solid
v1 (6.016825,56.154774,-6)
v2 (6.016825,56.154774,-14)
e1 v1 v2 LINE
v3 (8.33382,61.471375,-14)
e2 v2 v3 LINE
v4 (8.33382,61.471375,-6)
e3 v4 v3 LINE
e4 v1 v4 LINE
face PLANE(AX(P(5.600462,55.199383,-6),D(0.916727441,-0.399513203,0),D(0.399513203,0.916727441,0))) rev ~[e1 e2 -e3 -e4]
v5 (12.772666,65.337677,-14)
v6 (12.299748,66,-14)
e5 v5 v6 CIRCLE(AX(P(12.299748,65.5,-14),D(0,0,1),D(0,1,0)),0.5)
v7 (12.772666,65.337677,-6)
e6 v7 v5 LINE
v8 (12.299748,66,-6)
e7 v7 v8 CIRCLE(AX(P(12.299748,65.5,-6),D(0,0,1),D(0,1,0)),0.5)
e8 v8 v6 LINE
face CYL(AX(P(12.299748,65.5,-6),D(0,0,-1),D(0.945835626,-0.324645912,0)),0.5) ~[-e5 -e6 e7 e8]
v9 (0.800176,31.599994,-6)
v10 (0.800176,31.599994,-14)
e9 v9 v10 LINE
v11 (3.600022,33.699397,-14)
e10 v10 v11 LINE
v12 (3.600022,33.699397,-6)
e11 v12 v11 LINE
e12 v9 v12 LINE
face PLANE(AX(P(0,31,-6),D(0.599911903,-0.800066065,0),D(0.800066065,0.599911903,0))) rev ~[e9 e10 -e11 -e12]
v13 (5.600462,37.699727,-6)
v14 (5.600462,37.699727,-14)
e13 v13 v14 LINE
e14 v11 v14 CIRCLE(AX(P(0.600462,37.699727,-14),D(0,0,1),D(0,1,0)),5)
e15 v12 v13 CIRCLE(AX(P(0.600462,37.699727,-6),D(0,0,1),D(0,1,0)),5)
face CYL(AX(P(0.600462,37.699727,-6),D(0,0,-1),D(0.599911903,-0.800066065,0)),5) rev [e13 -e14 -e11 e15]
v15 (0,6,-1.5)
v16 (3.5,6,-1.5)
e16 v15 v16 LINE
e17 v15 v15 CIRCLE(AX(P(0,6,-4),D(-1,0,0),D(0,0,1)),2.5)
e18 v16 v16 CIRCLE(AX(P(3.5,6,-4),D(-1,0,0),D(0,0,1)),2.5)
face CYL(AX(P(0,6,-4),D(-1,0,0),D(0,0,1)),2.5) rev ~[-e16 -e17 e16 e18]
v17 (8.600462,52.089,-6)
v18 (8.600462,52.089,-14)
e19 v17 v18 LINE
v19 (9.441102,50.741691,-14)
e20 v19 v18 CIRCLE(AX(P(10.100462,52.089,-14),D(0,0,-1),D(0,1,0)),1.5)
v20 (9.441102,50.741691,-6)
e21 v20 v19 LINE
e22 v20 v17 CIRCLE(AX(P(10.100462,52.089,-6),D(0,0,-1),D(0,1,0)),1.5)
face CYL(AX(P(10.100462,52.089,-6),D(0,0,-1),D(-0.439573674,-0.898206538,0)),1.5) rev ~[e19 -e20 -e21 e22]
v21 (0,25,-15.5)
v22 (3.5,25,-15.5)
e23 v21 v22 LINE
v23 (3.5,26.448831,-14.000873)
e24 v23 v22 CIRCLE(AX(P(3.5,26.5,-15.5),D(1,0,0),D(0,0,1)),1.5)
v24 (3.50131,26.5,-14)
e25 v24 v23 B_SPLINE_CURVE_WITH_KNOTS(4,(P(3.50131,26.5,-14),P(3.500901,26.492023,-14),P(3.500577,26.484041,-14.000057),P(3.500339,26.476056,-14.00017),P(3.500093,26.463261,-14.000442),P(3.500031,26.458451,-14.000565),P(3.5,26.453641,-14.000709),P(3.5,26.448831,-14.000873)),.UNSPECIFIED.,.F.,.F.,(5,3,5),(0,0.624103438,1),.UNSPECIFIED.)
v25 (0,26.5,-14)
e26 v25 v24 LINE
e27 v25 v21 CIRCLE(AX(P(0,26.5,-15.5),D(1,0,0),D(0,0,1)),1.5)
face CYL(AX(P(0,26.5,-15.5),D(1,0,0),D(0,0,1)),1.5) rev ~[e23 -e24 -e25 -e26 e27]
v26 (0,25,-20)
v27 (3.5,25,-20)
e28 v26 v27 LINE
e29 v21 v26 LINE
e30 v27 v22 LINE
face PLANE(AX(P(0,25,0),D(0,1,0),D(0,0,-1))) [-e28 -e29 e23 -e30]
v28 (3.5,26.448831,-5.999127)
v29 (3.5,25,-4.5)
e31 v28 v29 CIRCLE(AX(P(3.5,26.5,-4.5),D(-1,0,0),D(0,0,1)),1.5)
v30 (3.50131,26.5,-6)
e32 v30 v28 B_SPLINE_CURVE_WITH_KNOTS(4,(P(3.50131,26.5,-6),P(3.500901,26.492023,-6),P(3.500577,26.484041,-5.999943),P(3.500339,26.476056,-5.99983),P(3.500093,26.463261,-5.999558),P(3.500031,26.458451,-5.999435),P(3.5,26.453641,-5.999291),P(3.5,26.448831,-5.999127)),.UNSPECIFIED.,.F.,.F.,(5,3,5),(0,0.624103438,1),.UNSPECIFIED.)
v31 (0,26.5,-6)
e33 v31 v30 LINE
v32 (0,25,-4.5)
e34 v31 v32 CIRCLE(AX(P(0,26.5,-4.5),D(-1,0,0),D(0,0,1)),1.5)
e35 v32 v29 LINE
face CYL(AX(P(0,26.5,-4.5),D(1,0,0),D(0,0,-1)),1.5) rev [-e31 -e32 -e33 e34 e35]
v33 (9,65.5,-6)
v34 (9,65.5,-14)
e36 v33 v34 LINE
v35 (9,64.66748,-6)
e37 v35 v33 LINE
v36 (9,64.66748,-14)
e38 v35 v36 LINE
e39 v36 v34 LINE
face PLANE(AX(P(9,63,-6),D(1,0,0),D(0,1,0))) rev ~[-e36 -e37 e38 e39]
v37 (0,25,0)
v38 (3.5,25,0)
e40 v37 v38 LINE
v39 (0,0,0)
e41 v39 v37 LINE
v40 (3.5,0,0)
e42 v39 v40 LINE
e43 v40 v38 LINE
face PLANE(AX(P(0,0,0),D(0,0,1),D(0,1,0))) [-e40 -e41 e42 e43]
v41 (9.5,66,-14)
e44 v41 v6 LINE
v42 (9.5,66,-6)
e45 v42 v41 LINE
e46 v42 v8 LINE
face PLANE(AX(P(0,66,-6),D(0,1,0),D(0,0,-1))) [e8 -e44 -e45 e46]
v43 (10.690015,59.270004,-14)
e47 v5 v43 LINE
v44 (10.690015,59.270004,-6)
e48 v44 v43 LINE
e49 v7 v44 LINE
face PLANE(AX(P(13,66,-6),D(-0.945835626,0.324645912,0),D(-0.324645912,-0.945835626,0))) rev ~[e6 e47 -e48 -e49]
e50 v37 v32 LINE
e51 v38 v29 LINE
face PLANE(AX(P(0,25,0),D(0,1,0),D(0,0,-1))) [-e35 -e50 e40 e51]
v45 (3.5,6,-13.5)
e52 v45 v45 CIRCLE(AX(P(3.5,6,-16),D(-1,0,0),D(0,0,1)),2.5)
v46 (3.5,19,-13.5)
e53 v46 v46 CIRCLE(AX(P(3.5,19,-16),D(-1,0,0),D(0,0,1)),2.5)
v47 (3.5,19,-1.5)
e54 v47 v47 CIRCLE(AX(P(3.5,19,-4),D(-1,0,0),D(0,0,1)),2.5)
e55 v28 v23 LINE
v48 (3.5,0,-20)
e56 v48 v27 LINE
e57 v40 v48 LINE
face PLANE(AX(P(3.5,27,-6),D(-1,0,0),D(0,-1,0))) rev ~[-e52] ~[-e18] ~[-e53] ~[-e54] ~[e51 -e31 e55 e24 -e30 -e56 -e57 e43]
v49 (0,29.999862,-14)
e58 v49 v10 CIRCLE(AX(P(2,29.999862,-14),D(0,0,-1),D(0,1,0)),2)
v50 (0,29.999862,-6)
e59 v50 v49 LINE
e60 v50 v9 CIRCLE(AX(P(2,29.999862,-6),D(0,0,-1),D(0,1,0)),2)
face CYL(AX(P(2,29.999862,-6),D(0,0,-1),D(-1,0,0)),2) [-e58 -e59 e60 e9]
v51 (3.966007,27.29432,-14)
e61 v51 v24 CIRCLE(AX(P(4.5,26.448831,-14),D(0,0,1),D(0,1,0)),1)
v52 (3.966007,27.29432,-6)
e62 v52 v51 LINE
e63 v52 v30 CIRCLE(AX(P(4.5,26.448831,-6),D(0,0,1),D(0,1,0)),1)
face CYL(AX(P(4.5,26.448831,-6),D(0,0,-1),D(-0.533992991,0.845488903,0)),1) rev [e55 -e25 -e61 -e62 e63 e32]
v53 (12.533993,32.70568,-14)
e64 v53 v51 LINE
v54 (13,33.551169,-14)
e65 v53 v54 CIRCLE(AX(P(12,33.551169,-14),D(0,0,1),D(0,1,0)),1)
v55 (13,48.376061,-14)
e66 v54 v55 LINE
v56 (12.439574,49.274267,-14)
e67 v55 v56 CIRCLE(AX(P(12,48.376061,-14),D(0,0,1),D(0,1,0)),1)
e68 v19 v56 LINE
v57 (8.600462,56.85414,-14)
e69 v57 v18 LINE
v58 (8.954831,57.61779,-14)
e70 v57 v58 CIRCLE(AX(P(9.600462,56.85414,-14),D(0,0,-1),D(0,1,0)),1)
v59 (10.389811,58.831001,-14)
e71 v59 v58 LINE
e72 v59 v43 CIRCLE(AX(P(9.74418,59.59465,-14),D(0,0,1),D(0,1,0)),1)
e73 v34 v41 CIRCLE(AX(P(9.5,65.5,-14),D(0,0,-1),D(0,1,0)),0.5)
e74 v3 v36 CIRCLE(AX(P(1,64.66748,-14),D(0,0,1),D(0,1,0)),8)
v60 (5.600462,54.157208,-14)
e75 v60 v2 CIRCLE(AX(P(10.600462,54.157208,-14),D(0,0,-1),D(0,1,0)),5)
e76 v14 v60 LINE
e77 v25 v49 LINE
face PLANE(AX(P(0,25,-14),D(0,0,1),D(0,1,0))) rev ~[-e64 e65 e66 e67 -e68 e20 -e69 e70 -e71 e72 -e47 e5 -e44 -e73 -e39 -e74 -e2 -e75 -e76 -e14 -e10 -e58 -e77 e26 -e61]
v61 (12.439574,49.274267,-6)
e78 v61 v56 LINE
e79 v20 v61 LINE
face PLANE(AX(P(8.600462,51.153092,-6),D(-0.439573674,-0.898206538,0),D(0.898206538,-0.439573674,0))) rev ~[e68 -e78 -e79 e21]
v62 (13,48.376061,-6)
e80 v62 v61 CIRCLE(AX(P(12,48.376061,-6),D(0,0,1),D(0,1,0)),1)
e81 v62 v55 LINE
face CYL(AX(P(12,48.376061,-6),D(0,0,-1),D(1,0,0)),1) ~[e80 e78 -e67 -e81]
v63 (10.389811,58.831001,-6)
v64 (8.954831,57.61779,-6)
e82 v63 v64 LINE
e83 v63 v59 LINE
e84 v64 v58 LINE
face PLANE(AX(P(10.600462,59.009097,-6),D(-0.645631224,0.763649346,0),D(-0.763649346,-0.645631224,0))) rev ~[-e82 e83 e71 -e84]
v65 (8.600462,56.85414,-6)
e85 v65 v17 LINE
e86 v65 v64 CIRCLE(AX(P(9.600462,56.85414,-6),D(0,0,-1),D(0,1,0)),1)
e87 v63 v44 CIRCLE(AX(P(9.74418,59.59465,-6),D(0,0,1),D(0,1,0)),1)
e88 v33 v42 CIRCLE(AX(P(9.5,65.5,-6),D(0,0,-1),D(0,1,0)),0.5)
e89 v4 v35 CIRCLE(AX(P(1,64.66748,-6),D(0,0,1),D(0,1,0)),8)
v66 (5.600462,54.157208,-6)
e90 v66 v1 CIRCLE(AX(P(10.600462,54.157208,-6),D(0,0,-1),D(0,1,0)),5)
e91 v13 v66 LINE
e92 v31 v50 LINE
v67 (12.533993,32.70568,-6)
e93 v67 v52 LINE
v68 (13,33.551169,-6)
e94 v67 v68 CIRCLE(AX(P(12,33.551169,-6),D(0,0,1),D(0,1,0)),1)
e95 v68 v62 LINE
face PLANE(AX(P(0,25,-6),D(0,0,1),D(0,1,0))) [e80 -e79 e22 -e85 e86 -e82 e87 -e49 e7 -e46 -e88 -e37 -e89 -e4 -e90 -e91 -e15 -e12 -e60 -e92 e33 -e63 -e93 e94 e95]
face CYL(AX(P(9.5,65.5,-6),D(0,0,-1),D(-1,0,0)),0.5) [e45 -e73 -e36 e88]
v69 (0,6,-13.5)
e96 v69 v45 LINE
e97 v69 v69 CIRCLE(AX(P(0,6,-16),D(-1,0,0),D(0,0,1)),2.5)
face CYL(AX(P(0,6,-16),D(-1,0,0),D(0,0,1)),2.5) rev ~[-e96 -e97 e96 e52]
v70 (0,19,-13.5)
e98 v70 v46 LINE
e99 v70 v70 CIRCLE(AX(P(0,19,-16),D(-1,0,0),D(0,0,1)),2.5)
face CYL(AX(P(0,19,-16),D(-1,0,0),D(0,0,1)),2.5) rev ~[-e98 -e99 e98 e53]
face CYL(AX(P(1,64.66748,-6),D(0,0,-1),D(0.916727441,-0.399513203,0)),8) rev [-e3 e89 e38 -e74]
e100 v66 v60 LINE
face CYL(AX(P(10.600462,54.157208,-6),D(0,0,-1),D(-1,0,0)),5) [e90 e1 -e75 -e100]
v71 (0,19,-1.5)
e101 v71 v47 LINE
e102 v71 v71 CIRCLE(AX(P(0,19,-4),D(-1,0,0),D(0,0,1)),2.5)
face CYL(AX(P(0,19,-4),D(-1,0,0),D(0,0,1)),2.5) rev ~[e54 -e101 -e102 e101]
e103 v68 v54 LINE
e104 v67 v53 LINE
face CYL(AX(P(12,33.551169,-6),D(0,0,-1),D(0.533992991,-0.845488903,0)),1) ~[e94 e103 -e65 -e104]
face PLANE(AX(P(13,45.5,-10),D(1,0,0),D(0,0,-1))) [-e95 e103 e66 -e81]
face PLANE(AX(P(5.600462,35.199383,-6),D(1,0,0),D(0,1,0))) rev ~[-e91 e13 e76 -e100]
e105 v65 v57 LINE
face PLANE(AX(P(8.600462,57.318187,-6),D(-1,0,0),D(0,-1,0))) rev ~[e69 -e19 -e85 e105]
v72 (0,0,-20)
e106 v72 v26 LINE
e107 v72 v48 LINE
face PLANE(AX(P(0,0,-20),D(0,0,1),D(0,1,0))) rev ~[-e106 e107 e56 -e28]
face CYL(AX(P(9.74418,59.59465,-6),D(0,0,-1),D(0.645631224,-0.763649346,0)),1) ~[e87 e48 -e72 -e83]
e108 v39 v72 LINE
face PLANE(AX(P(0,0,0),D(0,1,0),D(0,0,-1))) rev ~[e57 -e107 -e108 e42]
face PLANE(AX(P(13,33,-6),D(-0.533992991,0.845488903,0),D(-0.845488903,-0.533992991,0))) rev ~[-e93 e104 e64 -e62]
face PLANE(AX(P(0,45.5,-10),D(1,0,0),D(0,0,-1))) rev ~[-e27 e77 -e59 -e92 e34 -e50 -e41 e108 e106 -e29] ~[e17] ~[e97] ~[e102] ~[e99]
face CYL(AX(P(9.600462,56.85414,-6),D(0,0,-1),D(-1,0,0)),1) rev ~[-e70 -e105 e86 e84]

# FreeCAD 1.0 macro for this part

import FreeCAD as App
import Part
import Sketcher

V = App.Vector
Q = App.Units.Quantity


def edges_at(feature, points):
    """Names of the edges that pass closest to the given points."""
    edges = feature.Shape.Edges
    near = lambda p: min(range(len(edges)), key=lambda i: edges[i].distToShape(Part.Vertex(*p))[0])
    return sorted({f"Edge{near(p) + 1}" for p in points})

doc = App.newDocument("Part")
body = doc.addObject("PartDesign::Body", "Body")

# Sketch on YZ plane
sketch1 = body.newObject("Sketcher::SketchObject", "Sketch")
sketch1.AttachmentSupport = (doc.getObject("YZ_Plane"), [""])
sketch1.MapMode = "FlatFace"
sketch1.addGeometry(Part.LineSegment(V(25, 0, 0), V(0, 0, 0)), False)
sketch1.addGeometry(Part.LineSegment(V(0, 0, 0), V(0, -20, 0)), False)
sketch1.addGeometry(Part.LineSegment(V(0, -20, 0), V(25, -20, 0)), False)
sketch1.addGeometry(Part.LineSegment(V(25, -20, 0), V(25, 0, 0)), False)
sketch1.addConstraint(Sketcher.Constraint("Coincident", 0, 2, 1, 1))
sketch1.addConstraint(Sketcher.Constraint("Coincident", 1, 2, 2, 1))
sketch1.addConstraint(Sketcher.Constraint("Coincident", 2, 2, 3, 1))
sketch1.addConstraint(Sketcher.Constraint("Coincident", 3, 2, 0, 1))
sketch1.addConstraint(Sketcher.Constraint("Horizontal", 0))
sketch1.addConstraint(Sketcher.Constraint("Vertical", 1))
sketch1.addConstraint(Sketcher.Constraint("Horizontal", 2))
sketch1.addConstraint(Sketcher.Constraint("Vertical", 3))
sketch1.addConstraint(Sketcher.Constraint("Coincident", 0, 2, -1, 1))
sketch1.addConstraint(Sketcher.Constraint("DistanceX", 0, 2, 0, 1, Q("25 mm")))
sketch1.addConstraint(Sketcher.Constraint("DistanceY", 1, 2, 1, 1, Q("20 mm")))
pad1 = body.newObject("PartDesign::Pad", "Pad")
pad1.Profile = sketch1
pad1.Length = 3.5

# Sketch on YZ plane
sketch2 = body.newObject("Sketcher::SketchObject", "Sketch001")
sketch2.AttachmentSupport = (doc.getObject("YZ_Plane"), [""])
sketch2.MapMode = "FlatFace"
sketch2.AttachmentOffset = App.Placement(V(0, 0, 3.5), App.Rotation())
sketch2.addGeometry(Part.LineSegment(V(66, -6, 0), V(25, -6, 0)), False)
sketch2.addGeometry(Part.LineSegment(V(25, -6, 0), V(25, -14, 0)), False)
sketch2.addGeometry(Part.LineSegment(V(25, -14, 0), V(66, -14, 0)), False)
sketch2.addGeometry(Part.LineSegment(V(66, -14, 0), V(66, -6, 0)), False)
sketch2.addConstraint(Sketcher.Constraint("Coincident", 0, 2, 1, 1))
sketch2.addConstraint(Sketcher.Constraint("Coincident", 1, 2, 2, 1))
sketch2.addConstraint(Sketcher.Constraint("Coincident", 2, 2, 3, 1))
sketch2.addConstraint(Sketcher.Constraint("Coincident", 3, 2, 0, 1))
sketch2.addConstraint(Sketcher.Constraint("Horizontal", 0))
sketch2.addConstraint(Sketcher.Constraint("Vertical", 1))
sketch2.addConstraint(Sketcher.Constraint("Horizontal", 2))
sketch2.addConstraint(Sketcher.Constraint("Vertical", 3))
sketch2.addConstraint(Sketcher.Constraint("DistanceX", 0, 2, 0, 1, Q("41 mm")))
sketch2.addConstraint(Sketcher.Constraint("DistanceY", 1, 2, 1, 1, Q("8 mm")))
sketch2.addConstraint(Sketcher.Constraint("DistanceX", -1, 1, 0, 2, Q("25 mm")))
sketch2.addConstraint(Sketcher.Constraint("DistanceY", 0, 2, -1, 1, Q("6 mm")))
pad2 = body.newObject("PartDesign::Pad", "Pad001")
pad2.Profile = sketch2
pad2.Type = "TwoLengths"
pad2.Length = 9.5
pad2.Length2 = 3.5

# Sketch on YZ plane
sketch3 = body.newObject("Sketcher::SketchObject", "Sketch002")
sketch3.AttachmentSupport = (doc.getObject("YZ_Plane"), [""])
sketch3.MapMode = "FlatFace"
sketch3.addGeometry(Part.Circle(V(19, -16, 0), V(0, 0, 1), 2.5), False)
sketch3.addGeometry(Part.Circle(V(6, -16, 0), V(0, 0, 1), 2.5), False)
sketch3.addGeometry(Part.Circle(V(6, -4, 0), V(0, 0, 1), 2.5), False)
sketch3.addGeometry(Part.Circle(V(19, -4, 0), V(0, 0, 1), 2.5), False)
sketch3.addConstraint(Sketcher.Constraint("Equal", 0, 1))
sketch3.addConstraint(Sketcher.Constraint("Equal", 1, 2))
sketch3.addConstraint(Sketcher.Constraint("Equal", 2, 3))
sketch3.addConstraint(Sketcher.Constraint("Horizontal", 0, 3, 1, 3))
sketch3.addConstraint(Sketcher.Constraint("Horizontal", 2, 3, 3, 3))
sketch3.addConstraint(Sketcher.Constraint("Vertical", 1, 3, 2, 3))
sketch3.addConstraint(Sketcher.Constraint("Vertical", 0, 3, 3, 3))
sketch3.addConstraint(Sketcher.Constraint("Diameter", 0, Q("5 mm")))
sketch3.addConstraint(Sketcher.Constraint("DistanceX", -1, 1, 0, 3, Q("19 mm")))
sketch3.addConstraint(Sketcher.Constraint("DistanceY", 0, 3, -1, 1, Q("16 mm")))
sketch3.addConstraint(Sketcher.Constraint("DistanceX", -1, 1, 1, 3, Q("6 mm")))
sketch3.addConstraint(Sketcher.Constraint("DistanceY", 2, 3, -1, 1, Q("4 mm")))
pocket1 = body.newObject("PartDesign::Pocket", "Pocket")
pocket1.Profile = sketch3
pocket1.Length = 9.5
pocket1.Reversed = True

# Sketch on XY plane
sketch4 = body.newObject("Sketcher::SketchObject", "Sketch003")
sketch4.AttachmentSupport = (doc.getObject("XY_Plane"), [""])
sketch4.MapMode = "FlatFace"
sketch4.AttachmentOffset = App.Placement(V(0, 0, -6), App.Rotation())
sketch4.addGeometry(Part.LineSegment(V(0, 66, 0), V(0, 31, 0)), False)
sketch4.addGeometry(Part.LineSegment(V(0, 31, 0), V(5.600462, 35.199383, 0)), False)
sketch4.addGeometry(Part.LineSegment(V(5.600462, 35.199383, 0), V(5.600462, 55.199383, 0)), False)
sketch4.addGeometry(Part.LineSegment(V(5.600462, 55.199383, 0), V(9, 63, 0)), False)
sketch4.addGeometry(Part.LineSegment(V(9, 63, 0), V(9, 66, 0)), False)
sketch4.addGeometry(Part.LineSegment(V(9, 66, 0), V(0, 66, 0)), False)
sketch4.addGeometry(Part.LineSegment(V(3.5, 27, 0), V(3.5, 25, 0)), False)
sketch4.addGeometry(Part.LineSegment(V(3.5, 25, 0), V(13, 25, 0)), False)
sketch4.addGeometry(Part.LineSegment(V(13, 25, 0), V(13, 33, 0)), False)
sketch4.addGeometry(Part.LineSegment(V(13, 33, 0), V(3.5, 27, 0)), False)
sketch4.addGeometry(Part.LineSegment(V(13, 49, 0), V(13, 66, 0)), False)
sketch4.addGeometry(Part.LineSegment(V(13, 66, 0), V(10.600462, 59.009097, 0)), False)
sketch4.addGeometry(Part.LineSegment(V(10.600462, 59.009097, 0), V(8.600462, 57.318187, 0)), False)
sketch4.addGeometry(Part.LineSegment(V(8.600462, 57.318187, 0), V(8.600462, 51.153092, 0)), False)
sketch4.addGeometry(Part.LineSegment(V(8.600462, 51.153092, 0), V(13, 49, 0)), False)
sketch4.addConstraint(Sketcher.Constraint("Coincident", 0, 2, 1, 1))
sketch4.addConstraint(Sketcher.Constraint("Coincident", 1, 2, 2, 1))
sketch4.addConstraint(Sketcher.Constraint("Coincident", 2, 2, 3, 1))
sketch4.addConstraint(Sketcher.Constraint("Coincident", 3, 2, 4, 1))
sketch4.addConstraint(Sketcher.Constraint("Coincident", 4, 2, 5, 1))
sketch4.addConstraint(Sketcher.Constraint("Coincident", 5, 2, 0, 1))
sketch4.addConstraint(Sketcher.Constraint("Coincident", 6, 2, 7, 1))
sketch4.addConstraint(Sketcher.Constraint("Coincident", 7, 2, 8, 1))
sketch4.addConstraint(Sketcher.Constraint("Coincident", 8, 2, 9, 1))
sketch4.addConstraint(Sketcher.Constraint("Coincident", 9, 2, 6, 1))
sketch4.addConstraint(Sketcher.Constraint("Coincident", 10, 2, 11, 1))
sketch4.addConstraint(Sketcher.Constraint("Coincident", 11, 2, 12, 1))
sketch4.addConstraint(Sketcher.Constraint("Coincident", 12, 2, 13, 1))
sketch4.addConstraint(Sketcher.Constraint("Coincident", 13, 2, 14, 1))
sketch4.addConstraint(Sketcher.Constraint("Coincident", 14, 2, 10, 1))
sketch4.addConstraint(Sketcher.Constraint("Vertical", 0))
sketch4.addConstraint(Sketcher.Constraint("Vertical", 2))
sketch4.addConstraint(Sketcher.Constraint("Vertical", 4))
sketch4.addConstraint(Sketcher.Constraint("Horizontal", 5))
sketch4.addConstraint(Sketcher.Constraint("Vertical", 6))
sketch4.addConstraint(Sketcher.Constraint("Horizontal", 7))
sketch4.addConstraint(Sketcher.Constraint("Vertical", 8))
sketch4.addConstraint(Sketcher.Constraint("Vertical", 10))
sketch4.addConstraint(Sketcher.Constraint("Vertical", 13))
sketch4.addConstraint(Sketcher.Constraint("PointOnObject", 0, 2, -2))
sketch4.addConstraint(Sketcher.Constraint("Horizontal", 5, 2, 10, 2))
sketch4.addConstraint(Sketcher.Constraint("Vertical", 8, 2, 10, 2))
sketch4.addConstraint(Sketcher.Constraint("DistanceX", 5, 2, 5, 1, Q("9 mm")))
sketch4.addConstraint(Sketcher.Constraint("DistanceY", 0, 2, 0, 1, Q("35 mm")))
sketch4.addConstraint(Sketcher.Constraint("DistanceY", 2, 1, 2, 2, Q("20 mm")))
sketch4.addConstraint(Sketcher.Constraint("DistanceY", 4, 1, 4, 2, Q("3 mm")))
sketch4.addConstraint(Sketcher.Constraint("DistanceY", 6, 2, 6, 1, Q("2 mm")))
sketch4.addConstraint(Sketcher.Constraint("DistanceY", 8, 1, 8, 2, Q("8 mm")))
sketch4.addConstraint(Sketcher.Constraint("DistanceY", 10, 1, 10, 2, Q("17 mm")))
sketch4.addConstraint(Sketcher.Constraint("Distance", 1, Q("7 mm")))
sketch4.addConstraint(Sketcher.Constraint("DistanceX", 7, 1, 7, 2, Q("9.5 mm")))
sketch4.addConstraint(Sketcher.Constraint("DistanceY", -1, 1, 0, 2, Q("31 mm")))
sketch4.addConstraint(Sketcher.Constraint("DistanceY", -1, 1, 6, 2, Q("25 mm")))
sketch4.addConstraint(Sketcher.Constraint("DistanceX", -1, 1, 7, 2, Q("13 mm")))
sketch4.addConstraint(Sketcher.Constraint("DistanceX", 2, 2, 11, 2, Q("5 mm")))
sketch4.addConstraint(Sketcher.Constraint("DistanceX", 12, 2, 11, 2, Q("2 mm")))
sketch4.addConstraint(Sketcher.Constraint("Distance", 3, Q("8.509199 mm")))
sketch4.addConstraint(Sketcher.Constraint("DistanceY", 13, 2, 13, 1, Q("6.165095 mm")))
sketch4.addConstraint(Sketcher.Constraint("DistanceY", -1, 1, 13, 2, Q("51.153092 mm")))
sketch4.addConstraint(Sketcher.Constraint("DistanceY", 12, 2, 11, 2, Q("1.69091 mm")))
pocket2 = body.newObject("PartDesign::Pocket", "Pocket001")
pocket2.Profile = sketch4
pocket2.Length = 9.5
doc.recompute()

fillet = body.newObject("PartDesign::Fillet", "Fillet")
fillet.Base = (pocket2, edges_at(pocket2, [(1.75, 25, -6)]))
fillet.Radius = 1.5
doc.recompute()

fillet2 = body.newObject("PartDesign::Fillet", "Fillet001")
fillet2.Base = (fillet, edges_at(fillet, [(1.75, 25, -14)]))
fillet2.Radius = 1.5
doc.recompute()

fillet3 = body.newObject("PartDesign::Fillet", "Fillet002")
fillet3.Base = (fillet2, edges_at(fillet2, [(0, 31, -10)]))
fillet3.Radius = 2
doc.recompute()

fillet4 = body.newObject("PartDesign::Fillet", "Fillet003")
fillet4.Base = (fillet3, edges_at(fillet3, [(5.6, 35.199, -10)]))
fillet4.Radius = 5
doc.recompute()

fillet5 = body.newObject("PartDesign::Fillet", "Fillet004")
fillet5.Base = (fillet4, edges_at(fillet4, [(5.6, 55.199, -10)]))
fillet5.Radius = 5
doc.recompute()

fillet6 = body.newObject("PartDesign::Fillet", "Fillet005")
fillet6.Base = (fillet5, edges_at(fillet5, [(9, 63, -10)]))
fillet6.Radius = 8
doc.recompute()

fillet7 = body.newObject("PartDesign::Fillet", "Fillet006")
fillet7.Base = (fillet6, edges_at(fillet6, [(9, 66, -10)]))
fillet7.Radius = 0.5
doc.recompute()

fillet8 = body.newObject("PartDesign::Fillet", "Fillet007")
fillet8.Base = (fillet7, edges_at(fillet7, [(3.5, 27, -10)]))
fillet8.Radius = 1
doc.recompute()

fillet9 = body.newObject("PartDesign::Fillet", "Fillet008")
fillet9.Base = (fillet8, edges_at(fillet8, [(13, 33, -10)]))
fillet9.Radius = 1
doc.recompute()

fillet10 = body.newObject("PartDesign::Fillet", "Fillet009")
fillet10.Base = (fillet9, edges_at(fillet9, [(13, 49, -10)]))
fillet10.Radius = 1
doc.recompute()

fillet11 = body.newObject("PartDesign::Fillet", "Fillet010")
fillet11.Base = (fillet10, edges_at(fillet10, [(8.6, 51.153, -10)]))
fillet11.Radius = 1.5
doc.recompute()

fillet12 = body.newObject("PartDesign::Fillet", "Fillet011")
fillet12.Base = (fillet11, edges_at(fillet11, [(8.6, 57.318, -10)]))
fillet12.Radius = 1
doc.recompute()

fillet13 = body.newObject("PartDesign::Fillet", "Fillet012")
fillet13.Base = (fillet12, edges_at(fillet12, [(10.6, 59.009, -10)]))
fillet13.Radius = 1
doc.recompute()

fillet14 = body.newObject("PartDesign::Fillet", "Fillet013")
fillet14.Base = (fillet13, edges_at(fillet13, [(13, 66, -10)]))
fillet14.Radius = 0.5

doc.recompute()
